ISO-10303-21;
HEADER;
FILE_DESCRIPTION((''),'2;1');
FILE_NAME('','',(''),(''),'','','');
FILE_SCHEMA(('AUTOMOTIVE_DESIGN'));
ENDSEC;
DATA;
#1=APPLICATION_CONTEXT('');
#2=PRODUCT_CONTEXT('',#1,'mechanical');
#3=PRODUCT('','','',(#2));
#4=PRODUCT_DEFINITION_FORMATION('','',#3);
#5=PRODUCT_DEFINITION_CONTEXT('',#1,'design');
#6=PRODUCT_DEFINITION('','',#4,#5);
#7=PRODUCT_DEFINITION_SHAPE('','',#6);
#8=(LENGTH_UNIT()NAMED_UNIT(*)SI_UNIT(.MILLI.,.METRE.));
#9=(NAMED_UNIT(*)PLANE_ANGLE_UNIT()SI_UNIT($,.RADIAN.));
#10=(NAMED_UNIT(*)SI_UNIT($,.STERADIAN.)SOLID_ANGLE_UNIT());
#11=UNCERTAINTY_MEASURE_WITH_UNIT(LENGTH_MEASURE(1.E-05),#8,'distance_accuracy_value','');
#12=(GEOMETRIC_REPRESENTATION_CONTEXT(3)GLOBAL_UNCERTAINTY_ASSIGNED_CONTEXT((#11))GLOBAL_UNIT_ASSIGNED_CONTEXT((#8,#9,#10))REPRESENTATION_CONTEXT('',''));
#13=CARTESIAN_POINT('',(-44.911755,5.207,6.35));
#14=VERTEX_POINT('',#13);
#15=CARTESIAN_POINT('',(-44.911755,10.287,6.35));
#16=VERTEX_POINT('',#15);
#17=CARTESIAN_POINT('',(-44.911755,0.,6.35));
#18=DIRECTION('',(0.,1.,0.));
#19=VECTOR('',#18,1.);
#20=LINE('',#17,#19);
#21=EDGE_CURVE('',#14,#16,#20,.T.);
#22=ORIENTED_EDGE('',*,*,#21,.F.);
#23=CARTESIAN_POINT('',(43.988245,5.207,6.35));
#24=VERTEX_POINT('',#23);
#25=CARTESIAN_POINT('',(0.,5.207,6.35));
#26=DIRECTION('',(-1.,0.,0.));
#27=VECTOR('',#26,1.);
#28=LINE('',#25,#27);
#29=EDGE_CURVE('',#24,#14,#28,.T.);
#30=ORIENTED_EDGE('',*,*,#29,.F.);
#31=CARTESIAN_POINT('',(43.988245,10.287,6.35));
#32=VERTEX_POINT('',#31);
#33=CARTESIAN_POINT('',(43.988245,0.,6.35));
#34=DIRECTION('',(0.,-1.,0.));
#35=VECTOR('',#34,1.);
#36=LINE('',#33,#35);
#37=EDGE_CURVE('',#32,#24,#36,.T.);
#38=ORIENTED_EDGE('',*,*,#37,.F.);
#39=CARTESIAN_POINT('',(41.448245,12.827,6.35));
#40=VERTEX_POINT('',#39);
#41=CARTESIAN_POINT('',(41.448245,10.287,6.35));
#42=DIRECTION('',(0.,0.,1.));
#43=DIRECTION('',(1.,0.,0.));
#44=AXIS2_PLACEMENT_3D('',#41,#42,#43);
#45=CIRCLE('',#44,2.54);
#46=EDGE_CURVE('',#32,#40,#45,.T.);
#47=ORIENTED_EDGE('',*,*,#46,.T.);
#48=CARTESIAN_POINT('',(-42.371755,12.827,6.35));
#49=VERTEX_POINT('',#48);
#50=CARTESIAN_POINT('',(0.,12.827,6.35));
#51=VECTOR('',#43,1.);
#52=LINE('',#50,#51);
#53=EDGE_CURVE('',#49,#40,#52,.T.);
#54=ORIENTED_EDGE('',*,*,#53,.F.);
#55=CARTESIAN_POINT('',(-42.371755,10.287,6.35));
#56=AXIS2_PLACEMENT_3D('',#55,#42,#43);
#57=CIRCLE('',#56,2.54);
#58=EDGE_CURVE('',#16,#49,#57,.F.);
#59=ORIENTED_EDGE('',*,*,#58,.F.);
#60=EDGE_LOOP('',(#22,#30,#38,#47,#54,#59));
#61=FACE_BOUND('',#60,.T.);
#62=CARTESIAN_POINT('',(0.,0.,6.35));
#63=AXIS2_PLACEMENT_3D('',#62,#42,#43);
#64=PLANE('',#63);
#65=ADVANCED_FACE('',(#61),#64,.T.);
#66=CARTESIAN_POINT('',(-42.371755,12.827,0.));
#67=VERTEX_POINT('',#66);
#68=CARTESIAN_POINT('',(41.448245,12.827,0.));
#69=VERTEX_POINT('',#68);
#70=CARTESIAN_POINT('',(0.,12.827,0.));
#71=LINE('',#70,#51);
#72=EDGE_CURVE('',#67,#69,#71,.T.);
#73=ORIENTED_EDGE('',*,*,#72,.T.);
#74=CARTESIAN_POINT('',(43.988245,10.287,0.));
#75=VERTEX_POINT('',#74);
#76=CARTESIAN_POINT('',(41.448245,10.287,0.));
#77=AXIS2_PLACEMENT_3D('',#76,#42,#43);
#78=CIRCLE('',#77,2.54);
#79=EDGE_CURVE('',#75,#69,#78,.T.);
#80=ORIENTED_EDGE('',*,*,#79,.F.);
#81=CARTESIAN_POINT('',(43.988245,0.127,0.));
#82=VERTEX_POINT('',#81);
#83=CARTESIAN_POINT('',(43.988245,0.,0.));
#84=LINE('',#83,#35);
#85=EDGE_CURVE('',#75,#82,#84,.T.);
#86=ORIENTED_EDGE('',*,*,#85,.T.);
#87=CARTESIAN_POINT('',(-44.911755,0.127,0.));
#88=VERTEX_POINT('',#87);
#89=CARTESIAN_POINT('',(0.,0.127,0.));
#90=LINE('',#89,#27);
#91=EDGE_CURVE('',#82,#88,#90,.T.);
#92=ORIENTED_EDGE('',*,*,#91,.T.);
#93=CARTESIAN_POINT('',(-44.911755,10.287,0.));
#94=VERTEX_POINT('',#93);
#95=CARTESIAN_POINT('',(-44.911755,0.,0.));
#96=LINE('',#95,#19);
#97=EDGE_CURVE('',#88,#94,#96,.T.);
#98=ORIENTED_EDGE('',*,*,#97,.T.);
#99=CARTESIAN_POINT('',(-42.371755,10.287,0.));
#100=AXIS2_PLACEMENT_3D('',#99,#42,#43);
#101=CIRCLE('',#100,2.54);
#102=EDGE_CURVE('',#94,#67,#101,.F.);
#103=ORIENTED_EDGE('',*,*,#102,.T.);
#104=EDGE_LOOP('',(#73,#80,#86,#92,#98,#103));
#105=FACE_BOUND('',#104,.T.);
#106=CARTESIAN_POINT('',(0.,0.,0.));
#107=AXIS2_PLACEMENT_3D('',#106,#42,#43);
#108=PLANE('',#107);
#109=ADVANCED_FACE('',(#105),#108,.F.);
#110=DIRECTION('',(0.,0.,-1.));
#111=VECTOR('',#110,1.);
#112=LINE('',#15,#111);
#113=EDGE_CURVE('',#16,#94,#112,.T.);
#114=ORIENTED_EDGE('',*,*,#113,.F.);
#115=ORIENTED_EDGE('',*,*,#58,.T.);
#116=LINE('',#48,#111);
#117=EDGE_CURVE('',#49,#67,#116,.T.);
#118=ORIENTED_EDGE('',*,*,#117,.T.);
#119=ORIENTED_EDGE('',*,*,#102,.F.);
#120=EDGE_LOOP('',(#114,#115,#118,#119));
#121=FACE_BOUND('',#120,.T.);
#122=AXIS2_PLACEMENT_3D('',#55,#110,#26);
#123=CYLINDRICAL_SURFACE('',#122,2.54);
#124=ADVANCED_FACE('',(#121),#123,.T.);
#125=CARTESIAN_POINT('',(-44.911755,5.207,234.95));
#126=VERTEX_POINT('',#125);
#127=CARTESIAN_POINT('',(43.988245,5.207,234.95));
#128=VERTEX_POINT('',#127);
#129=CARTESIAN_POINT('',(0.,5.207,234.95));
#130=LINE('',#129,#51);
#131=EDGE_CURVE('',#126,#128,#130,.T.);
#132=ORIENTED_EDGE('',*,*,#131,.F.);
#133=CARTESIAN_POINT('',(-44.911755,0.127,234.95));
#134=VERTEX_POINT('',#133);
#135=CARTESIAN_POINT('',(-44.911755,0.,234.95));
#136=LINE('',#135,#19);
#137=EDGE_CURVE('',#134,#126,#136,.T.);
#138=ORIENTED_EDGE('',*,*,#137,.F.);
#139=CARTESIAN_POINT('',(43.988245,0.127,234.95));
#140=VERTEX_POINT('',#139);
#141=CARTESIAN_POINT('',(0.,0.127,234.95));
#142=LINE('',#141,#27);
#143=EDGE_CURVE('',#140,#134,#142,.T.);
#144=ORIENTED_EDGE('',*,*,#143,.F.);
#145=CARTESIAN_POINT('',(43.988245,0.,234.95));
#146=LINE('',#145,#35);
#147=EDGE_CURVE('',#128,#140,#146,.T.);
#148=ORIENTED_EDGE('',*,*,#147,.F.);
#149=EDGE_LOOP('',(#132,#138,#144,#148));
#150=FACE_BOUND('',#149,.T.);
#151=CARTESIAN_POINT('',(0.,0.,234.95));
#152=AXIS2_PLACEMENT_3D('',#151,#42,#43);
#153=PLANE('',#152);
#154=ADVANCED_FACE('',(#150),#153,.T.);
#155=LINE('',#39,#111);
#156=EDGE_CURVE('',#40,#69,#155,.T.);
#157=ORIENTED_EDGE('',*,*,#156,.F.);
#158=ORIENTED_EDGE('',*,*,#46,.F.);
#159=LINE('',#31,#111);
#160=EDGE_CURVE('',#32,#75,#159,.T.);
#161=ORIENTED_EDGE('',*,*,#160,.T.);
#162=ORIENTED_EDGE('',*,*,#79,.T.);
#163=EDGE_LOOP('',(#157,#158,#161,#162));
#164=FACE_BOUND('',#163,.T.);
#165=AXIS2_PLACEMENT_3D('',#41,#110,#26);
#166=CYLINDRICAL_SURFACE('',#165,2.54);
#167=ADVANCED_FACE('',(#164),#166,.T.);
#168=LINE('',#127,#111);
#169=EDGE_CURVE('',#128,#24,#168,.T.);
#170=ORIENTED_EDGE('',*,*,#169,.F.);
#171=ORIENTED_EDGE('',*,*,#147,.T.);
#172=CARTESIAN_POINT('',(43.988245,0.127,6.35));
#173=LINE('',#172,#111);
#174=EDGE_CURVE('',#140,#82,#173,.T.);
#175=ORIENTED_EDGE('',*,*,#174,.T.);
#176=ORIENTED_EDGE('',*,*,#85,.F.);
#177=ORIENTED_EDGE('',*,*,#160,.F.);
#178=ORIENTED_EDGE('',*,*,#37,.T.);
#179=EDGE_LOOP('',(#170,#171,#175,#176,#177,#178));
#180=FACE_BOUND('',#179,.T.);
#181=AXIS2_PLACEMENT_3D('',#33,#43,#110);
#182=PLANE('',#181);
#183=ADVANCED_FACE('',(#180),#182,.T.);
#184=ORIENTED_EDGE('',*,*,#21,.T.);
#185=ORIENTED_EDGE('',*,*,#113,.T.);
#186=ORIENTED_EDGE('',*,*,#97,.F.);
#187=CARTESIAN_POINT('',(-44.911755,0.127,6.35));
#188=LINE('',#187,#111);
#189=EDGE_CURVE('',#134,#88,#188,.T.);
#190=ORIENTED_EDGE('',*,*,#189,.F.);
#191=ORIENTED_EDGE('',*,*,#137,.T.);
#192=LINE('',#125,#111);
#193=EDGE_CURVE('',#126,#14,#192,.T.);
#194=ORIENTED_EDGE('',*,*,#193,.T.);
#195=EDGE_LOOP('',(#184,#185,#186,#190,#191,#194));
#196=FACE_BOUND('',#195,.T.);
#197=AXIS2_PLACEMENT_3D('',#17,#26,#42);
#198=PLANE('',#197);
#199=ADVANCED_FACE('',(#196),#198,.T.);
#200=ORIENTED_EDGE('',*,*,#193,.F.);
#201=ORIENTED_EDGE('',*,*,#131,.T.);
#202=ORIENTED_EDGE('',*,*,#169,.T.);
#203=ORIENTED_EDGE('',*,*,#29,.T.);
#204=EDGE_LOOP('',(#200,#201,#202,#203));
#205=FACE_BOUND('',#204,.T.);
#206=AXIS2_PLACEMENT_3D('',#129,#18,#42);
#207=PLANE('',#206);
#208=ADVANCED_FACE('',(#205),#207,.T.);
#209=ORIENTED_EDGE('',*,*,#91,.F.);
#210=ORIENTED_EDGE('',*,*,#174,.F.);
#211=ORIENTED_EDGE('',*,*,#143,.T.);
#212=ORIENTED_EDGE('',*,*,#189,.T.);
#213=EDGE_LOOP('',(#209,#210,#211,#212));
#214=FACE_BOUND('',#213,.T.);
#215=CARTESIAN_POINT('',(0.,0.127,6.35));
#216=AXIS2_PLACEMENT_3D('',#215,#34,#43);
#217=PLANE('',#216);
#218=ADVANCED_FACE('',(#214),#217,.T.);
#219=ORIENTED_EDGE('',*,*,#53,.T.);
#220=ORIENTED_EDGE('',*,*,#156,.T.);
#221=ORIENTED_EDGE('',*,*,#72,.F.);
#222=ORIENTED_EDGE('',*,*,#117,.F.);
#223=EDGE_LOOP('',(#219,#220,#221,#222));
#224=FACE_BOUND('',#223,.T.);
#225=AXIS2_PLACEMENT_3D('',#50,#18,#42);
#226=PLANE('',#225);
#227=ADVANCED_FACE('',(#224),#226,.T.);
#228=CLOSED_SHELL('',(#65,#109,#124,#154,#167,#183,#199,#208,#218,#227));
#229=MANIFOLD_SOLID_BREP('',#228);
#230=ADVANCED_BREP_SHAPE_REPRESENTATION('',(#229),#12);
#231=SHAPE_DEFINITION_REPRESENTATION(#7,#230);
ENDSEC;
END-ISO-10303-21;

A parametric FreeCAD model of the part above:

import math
import FreeCAD as App
import Part
import Sketcher
from FreeCAD import Vector
Q = App.Units.Quantity


def add_polygon(sketch, points):
    """Adds a closed chain of lines whose ends are joined by coincident constraints."""
    first, n = sketch.GeometryCount, len(points)
    for a, b in zip(points, points[1:] + points[:1]):
        sketch.addGeometry(Part.LineSegment(App.Vector(*a, 0), App.Vector(*b, 0)), False)
    for i in range(n):
        sketch.addConstraint(Sketcher.Constraint("Coincident", first + i, 2, first + (i + 1) % n, 1))

doc = App.newDocument("Part")
body = doc.addObject("PartDesign::Body", "Body")

# Sketch on XY plane
sketch1 = doc.addObject("Sketcher::SketchObject", "Sketch")
body.addObject(sketch1)
sketch1.AttachmentSupport = (doc.XY_Plane, [""])
sketch1.MapMode = "FlatFace"
sketch1.addGeometry(Part.LineSegment(Vector(-44.9, 0.1, 0), Vector(44, 0.1, 0)), False)
sketch1.addGeometry(Part.LineSegment(Vector(44, 0.1, 0), Vector(44, 10.3, 0)), False)
sketch1.addGeometry(Part.ArcOfCircle(Part.Circle(Vector(41.4, 10.3, 0), Vector(0, 0, 1), 2.5), math.radians(0), math.radians(90)), False)
sketch1.addGeometry(Part.LineSegment(Vector(41.4, 12.8, 0), Vector(-42.4, 12.8, 0)), False)
sketch1.addGeometry(Part.ArcOfCircle(Part.Circle(Vector(-42.4, 10.3, 0), Vector(0, 0, 1), 2.5), math.radians(90), math.radians(180)), False)
sketch1.addGeometry(Part.LineSegment(Vector(-44.9, 10.3, 0), Vector(-44.9, 0.1, 0)), False)
sketch1.addConstraint(Sketcher.Constraint("Coincident", 0, 2, 1, 1))
sketch1.addConstraint(Sketcher.Constraint("Tangent", 1, 2, 2, 1))
sketch1.addConstraint(Sketcher.Constraint("Tangent", 2, 2, 3, 1))
sketch1.addConstraint(Sketcher.Constraint("Tangent", 3, 2, 4, 1))
sketch1.addConstraint(Sketcher.Constraint("Tangent", 4, 2, 5, 1))
sketch1.addConstraint(Sketcher.Constraint("Coincident", 5, 2, 0, 1))
sketch1.addConstraint(Sketcher.Constraint("Horizontal", 0))
sketch1.addConstraint(Sketcher.Constraint("Vertical", 1))
sketch1.addConstraint(Sketcher.Constraint("Horizontal", 3))
sketch1.addConstraint(Sketcher.Constraint("Vertical", 5))
sketch1.addConstraint(Sketcher.Constraint("Equal", 2, 4))
sketch1.addConstraint(Sketcher.Constraint("Radius", 2, Q("0.1 in")))
sketch1.addConstraint(Sketcher.Constraint("DistanceX", 0, 1, 0, 2, Q("3.5 in")))
sketch1.addConstraint(Sketcher.Constraint("DistanceY", 1, 1, 1, 2, Q("0.4 in")))
sketch1.addConstraint(Sketcher.Constraint("DistanceY", -1, 1, 2, 3, Q("0.405 in")))
sketch1.addConstraint(Sketcher.Constraint("DistanceX", -1, 1, 2, 3, Q("41.448245 mm")))
pad1 = doc.addObject("PartDesign::Pad", "Pad")
body.addObject(pad1)
pad1.Profile = sketch1
pad1.Length = Q("0.25 in")

# Sketch on XY plane
sketch2 = doc.addObject("Sketcher::SketchObject", "Sketch001")
body.addObject(sketch2)
sketch2.AttachmentSupport = (doc.XY_Plane, [""])
sketch2.MapMode = "FlatFace"
add_polygon(sketch2, [(-45, 5), (-45, 0), (44, 0), (44, 5)])  # lines 0-3
sketch2.addConstraint(Sketcher.Constraint("Vertical", 0))
sketch2.addConstraint(Sketcher.Constraint("Horizontal", 1))
sketch2.addConstraint(Sketcher.Constraint("Vertical", 2))
sketch2.addConstraint(Sketcher.Constraint("Horizontal", 3))
sketch2.addConstraint(Sketcher.Constraint("DistanceX", 1, 1, 1, 2, Q("3.5 in")))
sketch2.addConstraint(Sketcher.Constraint("DistanceY", 0, 2, 0, 1, Q("0.2 in")))
sketch2.addConstraint(Sketcher.Constraint("DistanceY", -1, 1, 0, 2, Q("0.005 in")))
sketch2.addConstraint(Sketcher.Constraint("DistanceX", 0, 2, -1, 1, Q("44.911755 mm")))
pad2 = doc.addObject("PartDesign::Pad", "Pad001")
body.addObject(pad2)
pad2.Profile = sketch2
pad2.Length = Q("9.25 in")

doc.recompute()
